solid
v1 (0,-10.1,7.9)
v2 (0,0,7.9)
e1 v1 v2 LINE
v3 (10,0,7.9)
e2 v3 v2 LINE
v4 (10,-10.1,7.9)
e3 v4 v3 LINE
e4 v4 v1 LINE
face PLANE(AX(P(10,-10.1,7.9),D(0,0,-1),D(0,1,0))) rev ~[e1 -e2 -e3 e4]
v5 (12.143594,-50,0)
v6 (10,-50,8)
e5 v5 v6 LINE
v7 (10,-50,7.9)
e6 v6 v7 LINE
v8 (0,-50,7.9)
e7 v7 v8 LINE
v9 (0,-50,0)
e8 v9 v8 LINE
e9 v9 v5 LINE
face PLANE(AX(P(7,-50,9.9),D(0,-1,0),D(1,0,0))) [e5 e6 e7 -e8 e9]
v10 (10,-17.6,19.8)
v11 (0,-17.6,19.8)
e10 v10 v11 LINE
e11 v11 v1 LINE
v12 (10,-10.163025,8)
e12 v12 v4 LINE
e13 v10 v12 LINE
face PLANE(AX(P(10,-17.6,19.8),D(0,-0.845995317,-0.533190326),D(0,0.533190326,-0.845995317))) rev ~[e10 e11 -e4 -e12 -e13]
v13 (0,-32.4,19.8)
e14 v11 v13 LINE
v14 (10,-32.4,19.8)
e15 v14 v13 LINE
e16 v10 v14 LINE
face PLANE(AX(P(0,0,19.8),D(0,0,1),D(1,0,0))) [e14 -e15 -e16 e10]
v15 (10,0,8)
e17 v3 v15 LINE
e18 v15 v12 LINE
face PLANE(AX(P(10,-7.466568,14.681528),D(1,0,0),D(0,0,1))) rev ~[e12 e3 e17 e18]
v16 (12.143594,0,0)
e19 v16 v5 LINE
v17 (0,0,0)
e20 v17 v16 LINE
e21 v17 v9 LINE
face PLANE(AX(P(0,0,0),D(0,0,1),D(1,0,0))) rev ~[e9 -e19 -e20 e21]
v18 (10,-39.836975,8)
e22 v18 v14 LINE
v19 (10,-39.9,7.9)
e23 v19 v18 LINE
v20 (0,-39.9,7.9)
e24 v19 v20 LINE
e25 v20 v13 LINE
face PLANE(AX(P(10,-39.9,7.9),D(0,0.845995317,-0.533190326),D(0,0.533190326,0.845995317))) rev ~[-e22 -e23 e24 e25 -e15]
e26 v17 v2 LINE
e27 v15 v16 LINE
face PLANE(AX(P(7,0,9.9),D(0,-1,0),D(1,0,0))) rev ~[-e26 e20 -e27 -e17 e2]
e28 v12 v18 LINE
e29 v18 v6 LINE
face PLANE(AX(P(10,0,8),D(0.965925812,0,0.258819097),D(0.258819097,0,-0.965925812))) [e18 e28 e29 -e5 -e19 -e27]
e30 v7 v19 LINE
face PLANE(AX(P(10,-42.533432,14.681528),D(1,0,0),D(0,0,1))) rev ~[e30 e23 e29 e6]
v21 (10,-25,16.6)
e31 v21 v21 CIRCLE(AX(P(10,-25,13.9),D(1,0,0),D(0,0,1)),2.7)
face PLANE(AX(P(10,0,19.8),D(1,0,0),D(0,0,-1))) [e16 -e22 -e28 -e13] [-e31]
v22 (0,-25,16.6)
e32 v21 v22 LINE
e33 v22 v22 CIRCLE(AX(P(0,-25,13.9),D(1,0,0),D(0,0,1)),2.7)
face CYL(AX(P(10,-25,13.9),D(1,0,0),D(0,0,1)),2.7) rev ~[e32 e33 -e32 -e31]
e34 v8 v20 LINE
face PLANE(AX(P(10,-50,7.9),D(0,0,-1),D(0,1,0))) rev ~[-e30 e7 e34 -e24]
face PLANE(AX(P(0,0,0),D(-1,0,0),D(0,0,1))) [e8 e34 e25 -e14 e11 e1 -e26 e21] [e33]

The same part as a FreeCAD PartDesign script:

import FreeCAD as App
import Part
import Sketcher
from FreeCAD import Vector
Q = App.Units.Quantity

doc = App.newDocument("Part")
body = doc.addObject("PartDesign::Body", "Body")

sketch1 = doc.addObject("Sketcher::SketchObject", "Sketch")
body.addObject(sketch1)
sketch1.AttachmentSupport = (doc.XZ_Plane, [""])
sketch1.MapMode = "FlatFace"
sketch1.addGeometry(Part.LineSegment(Vector(0, 19.8, 0), Vector(0, 0, 0)), False)
sketch1.addGeometry(Part.LineSegment(Vector(0, 0, 0), Vector(14, 0, 0)), False)
sketch1.addGeometry(Part.LineSegment(Vector(14, 0, 0), Vector(14, 19.8, 0)), False)
sketch1.addGeometry(Part.LineSegment(Vector(14, 19.8, 0), Vector(0, 19.8, 0)), False)
sketch1.addConstraint(Sketcher.Constraint("Coincident", 0, 2, 1, 1))
sketch1.addConstraint(Sketcher.Constraint("Coincident", 1, 2, 2, 1))
sketch1.addConstraint(Sketcher.Constraint("Coincident", 2, 2, 3, 1))
sketch1.addConstraint(Sketcher.Constraint("Coincident", 3, 2, 0, 1))
sketch1.addConstraint(Sketcher.Constraint("Vertical", 0))
sketch1.addConstraint(Sketcher.Constraint("Horizontal", 1))
sketch1.addConstraint(Sketcher.Constraint("Vertical", 2))
sketch1.addConstraint(Sketcher.Constraint("Horizontal", 3))
sketch1.addConstraint(Sketcher.Constraint("Coincident", 0, 2, -1, 1))
sketch1.addConstraint(Sketcher.Constraint("DistanceX", 1, 1, 1, 2, 14.0))
sketch1.addConstraint(Sketcher.Constraint("DistanceY", 0, 2, 0, 1, 19.8))
pad1 = doc.addObject("PartDesign::Pad", "Pad")
body.addObject(pad1)
pad1.Profile = sketch1
pad1.Length = 50

sketch2 = doc.addObject("Sketcher::SketchObject", "Sketch001")
body.addObject(sketch2)
sketch2.AttachmentSupport = (doc.XZ_Plane, [""])
sketch2.MapMode = "FlatFace"
sketch2.addGeometry(Part.LineSegment(Vector(10, 8, 0), Vector(10, 19.8, 0)), False)
sketch2.addGeometry(Part.LineSegment(Vector(10, 19.8, 0), Vector(14, 19.8, 0)), False)
sketch2.addGeometry(Part.LineSegment(Vector(14, 19.8, 0), Vector(14, 0, 0)), False)
sketch2.addGeometry(Part.LineSegment(Vector(14, 0, 0), Vector(12.143594, 0, 0)), False)
sketch2.addGeometry(Part.LineSegment(Vector(12.143594, 0, 0), Vector(10, 8, 0)), False)
sketch2.addConstraint(Sketcher.Constraint("Coincident", 0, 2, 1, 1))
sketch2.addConstraint(Sketcher.Constraint("Coincident", 1, 2, 2, 1))
sketch2.addConstraint(Sketcher.Constraint("Coincident", 2, 2, 3, 1))
sketch2.addConstraint(Sketcher.Constraint("Coincident", 3, 2, 4, 1))
sketch2.addConstraint(Sketcher.Constraint("Coincident", 4, 2, 0, 1))
sketch2.addConstraint(Sketcher.Constraint("Vertical", 0))
sketch2.addConstraint(Sketcher.Constraint("Horizontal", 1))
sketch2.addConstraint(Sketcher.Constraint("Vertical", 2))
sketch2.addConstraint(Sketcher.Constraint("Horizontal", 3))
sketch2.addConstraint(Sketcher.Constraint("PointOnObject", 2, 2, -1))
sketch2.addConstraint(Sketcher.Constraint("DistanceX", 1, 1, 1, 2, 4.0))
sketch2.addConstraint(Sketcher.Constraint("Angle", 4, Q("105.000003 deg")))
sketch2.addConstraint(Sketcher.Constraint("DistanceY", 0, 1, 0, 2, 11.8))
sketch2.addConstraint(Sketcher.Constraint("DistanceY", 2, 2, 2, 1, 19.8))
sketch2.addConstraint(Sketcher.Constraint("DistanceX", -1, 1, 0, 2, 10.0))
pocket1 = doc.addObject("PartDesign::Pocket", "Pocket")
body.addObject(pocket1)
pocket1.Profile = sketch2
pocket1.Type = "ThroughAll"
pocket1.Reversed = True

sketch3 = doc.addObject("Sketcher::SketchObject", "Sketch002")
body.addObject(sketch3)
sketch3.AttachmentSupport = (doc.YZ_Plane, [""])
sketch3.MapMode = "FlatFace"
sketch3.AttachmentOffset = App.Placement(Vector(0, 0, 10), App.Rotation())
sketch3.addGeometry(Part.Circle(Vector(-25, 13.9, 0), Vector(0, 0, 1), 2.7), False)
sketch3.addConstraint(Sketcher.Constraint("Diameter", 0, 5.4))
sketch3.addConstraint(Sketcher.Constraint("DistanceX", 0, 3, -1, 1, 25.0))
sketch3.addConstraint(Sketcher.Constraint("DistanceY", -1, 1, 0, 3, 13.9))
pocket2 = doc.addObject("PartDesign::Pocket", "Pocket001")
body.addObject(pocket2)
pocket2.Profile = sketch3
pocket2.Type = "ThroughAll"

sketch4 = doc.addObject("Sketcher::SketchObject", "Sketch003")
body.addObject(sketch4)
sketch4.AttachmentSupport = (doc.YZ_Plane, [""])
sketch4.MapMode = "FlatFace"
sketch4.AttachmentOffset = App.Placement(Vector(0, 0, 10), App.Rotation())
sketch4.addGeometry(Part.LineSegment(Vector(-39.9, 7.9, 0), Vector(-32.4, 19.8, 0)), False)
sketch4.addGeometry(Part.LineSegment(Vector(-32.4, 19.8, 0), Vector(-50, 19.8, 0)), False)
sketch4.addGeometry(Part.LineSegment(Vector(-50, 19.8, 0), Vector(-50, 7.9, 0)), False)
sketch4.addGeometry(Part.LineSegment(Vector(-50, 7.9, 0), Vector(-39.9, 7.9, 0)), False)
sketch4.addGeometry(Part.LineSegment(Vector(0, 7.9, 0), Vector(0, 19.8, 0)), False)
sketch4.addGeometry(Part.LineSegment(Vector(0, 19.8, 0), Vector(-17.6, 19.8, 0)), False)
sketch4.addGeometry(Part.LineSegment(Vector(-17.6, 19.8, 0), Vector(-10.1, 7.9, 0)), False)
sketch4.addGeometry(Part.LineSegment(Vector(-10.1, 7.9, 0), Vector(0, 7.9, 0)), False)
sketch4.addConstraint(Sketcher.Constraint("Coincident", 0, 2, 1, 1))
sketch4.addConstraint(Sketcher.Constraint("Coincident", 1, 2, 2, 1))
sketch4.addConstraint(Sketcher.Constraint("Coincident", 2, 2, 3, 1))
sketch4.addConstraint(Sketcher.Constraint("Coincident", 3, 2, 0, 1))
sketch4.addConstraint(Sketcher.Constraint("Coincident", 4, 2, 5, 1))
sketch4.addConstraint(Sketcher.Constraint("Coincident", 5, 2, 6, 1))
sketch4.addConstraint(Sketcher.Constraint("Coincident", 6, 2, 7, 1))
sketch4.addConstraint(Sketcher.Constraint("Coincident", 7, 2, 4, 1))
sketch4.addConstraint(Sketcher.Constraint("Horizontal", 1))
sketch4.addConstraint(Sketcher.Constraint("Vertical", 2))
sketch4.addConstraint(Sketcher.Constraint("Horizontal", 3))
sketch4.addConstraint(Sketcher.Constraint("Vertical", 4))
sketch4.addConstraint(Sketcher.Constraint("Horizontal", 5))
sketch4.addConstraint(Sketcher.Constraint("Horizontal", 7))
sketch4.addConstraint(Sketcher.Constraint("PointOnObject", 4, 2, -2))
sketch4.addConstraint(Sketcher.Constraint("Horizontal", 1, 2, 4, 2))
sketch4.addConstraint(Sketcher.Constraint("Horizontal", 3, 2, 6, 2))
sketch4.addConstraint(Sketcher.Constraint("Equal", 1, 5))
sketch4.addConstraint(Sketcher.Constraint("Equal", 3, 7))
sketch4.addConstraint(Sketcher.Constraint("DistanceX", 1, 2, 1, 1, 17.6))
sketch4.addConstraint(Sketcher.Constraint("DistanceX", 3, 1, 3, 2, 10.1))
sketch4.addConstraint(Sketcher.Constraint("DistanceY", 2, 2, 2, 1, 11.9))
sketch4.addConstraint(Sketcher.Constraint("DistanceX", 1, 2, -1, 1, 50.0))
sketch4.addConstraint(Sketcher.Constraint("DistanceY", -1, 1, 0, 2, 19.8))
pocket3 = doc.addObject("PartDesign::Pocket", "Pocket002")
body.addObject(pocket3)
pocket3.Profile = sketch4
pocket3.Length = 10

doc.recompute()
